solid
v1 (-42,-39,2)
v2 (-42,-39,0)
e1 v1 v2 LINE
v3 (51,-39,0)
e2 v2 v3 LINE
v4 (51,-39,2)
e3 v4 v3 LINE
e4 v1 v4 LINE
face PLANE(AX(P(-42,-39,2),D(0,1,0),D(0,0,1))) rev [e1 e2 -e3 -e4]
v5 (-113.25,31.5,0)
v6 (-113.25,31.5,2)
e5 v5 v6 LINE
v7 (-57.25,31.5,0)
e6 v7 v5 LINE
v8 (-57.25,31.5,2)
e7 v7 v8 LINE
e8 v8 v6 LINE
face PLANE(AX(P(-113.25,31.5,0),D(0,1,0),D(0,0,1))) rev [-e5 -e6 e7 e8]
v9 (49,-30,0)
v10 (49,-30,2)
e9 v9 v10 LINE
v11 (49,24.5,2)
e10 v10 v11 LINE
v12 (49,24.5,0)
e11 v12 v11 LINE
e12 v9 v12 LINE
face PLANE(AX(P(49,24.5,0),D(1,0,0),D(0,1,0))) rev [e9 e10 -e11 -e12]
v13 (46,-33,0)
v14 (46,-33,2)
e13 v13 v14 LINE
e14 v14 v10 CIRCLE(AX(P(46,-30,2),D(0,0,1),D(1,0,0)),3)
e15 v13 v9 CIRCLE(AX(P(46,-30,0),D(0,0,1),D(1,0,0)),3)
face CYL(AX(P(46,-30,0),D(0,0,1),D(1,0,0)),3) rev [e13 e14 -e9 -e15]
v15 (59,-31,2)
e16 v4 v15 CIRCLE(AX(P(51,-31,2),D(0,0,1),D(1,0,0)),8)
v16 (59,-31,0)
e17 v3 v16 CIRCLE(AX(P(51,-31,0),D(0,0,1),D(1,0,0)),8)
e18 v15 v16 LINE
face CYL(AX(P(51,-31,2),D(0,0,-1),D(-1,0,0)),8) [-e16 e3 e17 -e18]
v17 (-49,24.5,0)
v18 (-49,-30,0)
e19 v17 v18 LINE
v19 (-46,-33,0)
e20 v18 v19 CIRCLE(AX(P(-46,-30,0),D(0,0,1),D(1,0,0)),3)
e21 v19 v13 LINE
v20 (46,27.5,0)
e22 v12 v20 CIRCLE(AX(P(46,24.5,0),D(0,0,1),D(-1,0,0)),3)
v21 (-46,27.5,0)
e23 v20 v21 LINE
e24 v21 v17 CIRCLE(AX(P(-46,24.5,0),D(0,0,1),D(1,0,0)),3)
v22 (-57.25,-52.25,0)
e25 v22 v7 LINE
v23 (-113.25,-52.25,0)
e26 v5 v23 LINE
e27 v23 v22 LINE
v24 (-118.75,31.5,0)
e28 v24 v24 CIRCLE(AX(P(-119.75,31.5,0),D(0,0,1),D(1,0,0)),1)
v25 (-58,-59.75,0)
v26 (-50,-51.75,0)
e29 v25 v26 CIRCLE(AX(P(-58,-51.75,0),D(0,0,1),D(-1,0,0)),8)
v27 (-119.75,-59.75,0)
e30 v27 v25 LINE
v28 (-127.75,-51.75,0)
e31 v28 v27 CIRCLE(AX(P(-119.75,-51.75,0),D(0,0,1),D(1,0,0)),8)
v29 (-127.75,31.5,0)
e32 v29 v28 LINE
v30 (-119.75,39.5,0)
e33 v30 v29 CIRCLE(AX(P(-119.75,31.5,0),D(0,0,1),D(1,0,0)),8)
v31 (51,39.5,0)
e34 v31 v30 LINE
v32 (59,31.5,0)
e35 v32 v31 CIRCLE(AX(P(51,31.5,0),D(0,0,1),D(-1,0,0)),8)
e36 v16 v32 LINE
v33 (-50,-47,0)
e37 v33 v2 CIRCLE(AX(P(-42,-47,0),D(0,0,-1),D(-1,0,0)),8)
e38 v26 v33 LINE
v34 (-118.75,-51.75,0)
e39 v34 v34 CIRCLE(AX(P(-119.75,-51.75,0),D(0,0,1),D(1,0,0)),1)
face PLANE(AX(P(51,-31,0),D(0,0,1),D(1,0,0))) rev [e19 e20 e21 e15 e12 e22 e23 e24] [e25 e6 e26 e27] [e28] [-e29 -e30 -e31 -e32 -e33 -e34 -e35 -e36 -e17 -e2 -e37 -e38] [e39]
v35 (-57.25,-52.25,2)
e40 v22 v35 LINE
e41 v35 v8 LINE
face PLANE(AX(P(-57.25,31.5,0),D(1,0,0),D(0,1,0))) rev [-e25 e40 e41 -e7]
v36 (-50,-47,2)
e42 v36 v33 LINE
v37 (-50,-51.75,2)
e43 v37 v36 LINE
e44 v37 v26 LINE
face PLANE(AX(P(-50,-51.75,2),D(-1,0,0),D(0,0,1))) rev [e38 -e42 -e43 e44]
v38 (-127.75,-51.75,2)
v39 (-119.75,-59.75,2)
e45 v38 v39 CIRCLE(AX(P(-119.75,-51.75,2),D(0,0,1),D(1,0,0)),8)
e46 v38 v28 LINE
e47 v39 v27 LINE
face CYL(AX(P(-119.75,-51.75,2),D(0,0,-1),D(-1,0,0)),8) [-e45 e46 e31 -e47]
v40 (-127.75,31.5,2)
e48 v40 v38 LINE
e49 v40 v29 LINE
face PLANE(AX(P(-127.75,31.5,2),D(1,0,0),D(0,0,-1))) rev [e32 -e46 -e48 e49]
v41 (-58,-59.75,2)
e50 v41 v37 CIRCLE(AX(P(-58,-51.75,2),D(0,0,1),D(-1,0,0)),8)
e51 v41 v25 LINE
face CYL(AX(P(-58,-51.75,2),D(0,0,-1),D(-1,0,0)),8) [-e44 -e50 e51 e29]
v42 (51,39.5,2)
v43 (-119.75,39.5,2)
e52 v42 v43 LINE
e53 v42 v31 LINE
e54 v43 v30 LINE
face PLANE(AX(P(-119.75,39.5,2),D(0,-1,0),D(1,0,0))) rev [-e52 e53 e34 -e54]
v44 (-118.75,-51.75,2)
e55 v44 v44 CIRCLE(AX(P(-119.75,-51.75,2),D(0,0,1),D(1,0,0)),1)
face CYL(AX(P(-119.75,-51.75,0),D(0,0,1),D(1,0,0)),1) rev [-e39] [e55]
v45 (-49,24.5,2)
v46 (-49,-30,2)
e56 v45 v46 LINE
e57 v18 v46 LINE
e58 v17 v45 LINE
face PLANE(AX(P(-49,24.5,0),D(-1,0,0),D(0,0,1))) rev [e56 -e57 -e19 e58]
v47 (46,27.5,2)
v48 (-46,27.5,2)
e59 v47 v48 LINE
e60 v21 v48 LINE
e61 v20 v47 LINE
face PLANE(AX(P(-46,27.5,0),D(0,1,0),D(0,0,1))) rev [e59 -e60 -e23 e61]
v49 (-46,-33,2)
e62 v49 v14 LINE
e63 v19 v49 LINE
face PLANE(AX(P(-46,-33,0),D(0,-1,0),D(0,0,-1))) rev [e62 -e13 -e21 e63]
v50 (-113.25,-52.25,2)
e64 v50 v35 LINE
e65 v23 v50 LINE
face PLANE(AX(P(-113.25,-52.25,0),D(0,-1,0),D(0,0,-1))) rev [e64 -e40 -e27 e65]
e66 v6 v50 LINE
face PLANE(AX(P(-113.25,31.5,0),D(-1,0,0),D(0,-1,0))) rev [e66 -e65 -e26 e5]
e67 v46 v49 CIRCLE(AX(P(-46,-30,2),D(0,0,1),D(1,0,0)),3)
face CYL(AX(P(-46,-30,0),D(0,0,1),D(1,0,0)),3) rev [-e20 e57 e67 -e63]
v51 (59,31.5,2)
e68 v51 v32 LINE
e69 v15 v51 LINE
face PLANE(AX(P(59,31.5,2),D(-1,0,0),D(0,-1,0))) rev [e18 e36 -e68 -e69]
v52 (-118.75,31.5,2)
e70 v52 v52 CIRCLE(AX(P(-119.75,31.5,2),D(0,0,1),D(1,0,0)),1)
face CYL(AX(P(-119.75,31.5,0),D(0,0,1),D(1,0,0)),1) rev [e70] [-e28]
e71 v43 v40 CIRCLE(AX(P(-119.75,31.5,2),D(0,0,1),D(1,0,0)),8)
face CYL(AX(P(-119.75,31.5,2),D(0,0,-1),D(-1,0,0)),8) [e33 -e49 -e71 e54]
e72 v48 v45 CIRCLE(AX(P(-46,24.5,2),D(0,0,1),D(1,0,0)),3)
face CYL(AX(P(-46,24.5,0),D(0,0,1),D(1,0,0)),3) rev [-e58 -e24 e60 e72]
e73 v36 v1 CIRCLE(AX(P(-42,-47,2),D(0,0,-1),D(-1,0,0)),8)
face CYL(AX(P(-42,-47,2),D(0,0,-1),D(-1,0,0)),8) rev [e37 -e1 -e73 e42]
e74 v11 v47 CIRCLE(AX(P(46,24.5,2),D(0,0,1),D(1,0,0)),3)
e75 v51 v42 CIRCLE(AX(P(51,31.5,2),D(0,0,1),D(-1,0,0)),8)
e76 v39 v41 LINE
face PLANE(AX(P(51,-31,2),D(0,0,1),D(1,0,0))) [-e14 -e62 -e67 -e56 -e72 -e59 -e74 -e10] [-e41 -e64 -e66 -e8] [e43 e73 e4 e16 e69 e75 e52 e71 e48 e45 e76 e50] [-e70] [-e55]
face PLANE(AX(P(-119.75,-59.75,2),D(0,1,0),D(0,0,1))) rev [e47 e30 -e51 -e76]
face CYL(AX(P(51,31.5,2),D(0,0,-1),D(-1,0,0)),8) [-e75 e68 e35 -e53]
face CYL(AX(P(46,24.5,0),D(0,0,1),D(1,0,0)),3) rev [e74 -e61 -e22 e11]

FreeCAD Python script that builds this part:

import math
import FreeCAD as App
import Part
import Sketcher
from FreeCAD import Vector

doc = App.newDocument("Part")
params = doc.addObject("Spreadsheet::Sheet", "Params")
for row, (alias, value) in enumerate([
    ("sketch1_radius", "8 mm"),
    ("sketch1_width", "93 mm"),
    ("sketch1_height", "62.5 mm"),
    ("sketch1_width2", "170.75 mm"),
    ("sketch1_height2", "4.75 mm"),
    ("pad1_length", "2 mm"),
    ("sketch2_diameter", "2 mm"),
    ("sketch3_radius", "3 mm"),
    ("sketch3_width", "56 mm"),
    ("sketch3_width2", "92 mm"),
    ("sketch3_height", "54.5 mm"),
    ("sketch3_height2", "83.75 mm"),
], start=1):
    params.set(f"A{row}", alias)
    params.set(f"B{row}", "=" + value)
    params.setAlias(f"B{row}", alias)

body = doc.addObject("PartDesign::Body", "Body")

sketch1 = body.newObject("Sketcher::SketchObject", "Sketch")
sketch1.AttachmentSupport = (doc.getObject("XY_Plane"), [""])
sketch1.MapMode = "FlatFace"
sketch1.addGeometry(Part.LineSegment(Vector(-50, -51.8, 0), Vector(-50, -47, 0)), False)
sketch1.addGeometry(Part.ArcOfCircle(Part.Circle(Vector(-42, -47, 0), Vector(0, 0, 1), 8), math.radians(90), math.radians(180)), False)
sketch1.addGeometry(Part.LineSegment(Vector(-42, -39, 0), Vector(51, -39, 0)), False)
sketch1.addGeometry(Part.ArcOfCircle(Part.Circle(Vector(51, -31, 0), Vector(0, 0, 1), 8), math.radians(-90), math.radians(0)), False)
sketch1.addGeometry(Part.LineSegment(Vector(59, -31, 0), Vector(59, 31.5, 0)), False)
sketch1.addGeometry(Part.ArcOfCircle(Part.Circle(Vector(51, 31.5, 0), Vector(0, 0, 1), 8), math.radians(0), math.radians(90)), False)
sketch1.addGeometry(Part.LineSegment(Vector(51, 39.5, 0), Vector(-119.8, 39.5, 0)), False)
sketch1.addGeometry(Part.ArcOfCircle(Part.Circle(Vector(-119.7, 31.5, 0), Vector(0, 0, 1), 8), math.radians(90), math.radians(180)), False)
sketch1.addGeometry(Part.LineSegment(Vector(-127.8, 31.5, 0), Vector(-127.8, -51.8, 0)), False)
sketch1.addGeometry(Part.ArcOfCircle(Part.Circle(Vector(-119.7, -51.7, 0), Vector(0, 0, 1), 8), math.radians(-180), math.radians(-90)), False)
sketch1.addGeometry(Part.LineSegment(Vector(-119.8, -59.8, 0), Vector(-58, -59.8, 0)), False)
sketch1.addGeometry(Part.ArcOfCircle(Part.Circle(Vector(-58, -51.7, 0), Vector(0, 0, 1), 8), math.radians(-90), math.radians(0)), False)
sketch1.addConstraint(Sketcher.Constraint("Tangent", 0, 2, 1, 2))
sketch1.addConstraint(Sketcher.Constraint("Tangent", 1, 1, 2, 1))
sketch1.addConstraint(Sketcher.Constraint("Tangent", 2, 2, 3, 1))
sketch1.addConstraint(Sketcher.Constraint("Tangent", 3, 2, 4, 1))
sketch1.addConstraint(Sketcher.Constraint("Tangent", 4, 2, 5, 1))
sketch1.addConstraint(Sketcher.Constraint("Tangent", 5, 2, 6, 1))
sketch1.addConstraint(Sketcher.Constraint("Tangent", 6, 2, 7, 1))
sketch1.addConstraint(Sketcher.Constraint("Tangent", 7, 2, 8, 1))
sketch1.addConstraint(Sketcher.Constraint("Tangent", 8, 2, 9, 1))
sketch1.addConstraint(Sketcher.Constraint("Tangent", 9, 2, 10, 1))
sketch1.addConstraint(Sketcher.Constraint("Tangent", 10, 2, 11, 1))
sketch1.addConstraint(Sketcher.Constraint("Tangent", 11, 2, 0, 1))
sketch1.addConstraint(Sketcher.Constraint("Vertical", 0))
sketch1.addConstraint(Sketcher.Constraint("Horizontal", 2))
sketch1.addConstraint(Sketcher.Constraint("Vertical", 4))
sketch1.addConstraint(Sketcher.Constraint("Horizontal", 6))
sketch1.addConstraint(Sketcher.Constraint("Vertical", 8))
sketch1.addConstraint(Sketcher.Constraint("Horizontal", 10))
sketch1.addConstraint(Sketcher.Constraint("Equal", 1, 3))
sketch1.addConstraint(Sketcher.Constraint("Equal", 3, 5))
sketch1.addConstraint(Sketcher.Constraint("Equal", 5, 7))
sketch1.addConstraint(Sketcher.Constraint("Equal", 7, 9))
sketch1.addConstraint(Sketcher.Constraint("Equal", 9, 11))
sketch1.addConstraint(Sketcher.Constraint("Radius", 1, 8.0))
sketch1.addConstraint(Sketcher.Constraint("DistanceX", 2, 1, 2, 2, 93.0))
sketch1.addConstraint(Sketcher.Constraint("DistanceY", 4, 1, 4, 2, 62.5))
sketch1.addConstraint(Sketcher.Constraint("DistanceX", 1, 3, -1, 1, 42.0))
sketch1.addConstraint(Sketcher.Constraint("DistanceY", 1, 3, -1, 1, 47.0))
sketch1.addConstraint(Sketcher.Constraint("DistanceX", 6, 2, 6, 1, 170.75))
sketch1.addConstraint(Sketcher.Constraint("DistanceY", 0, 1, 0, 2, 4.75))
sketch1.setExpression("Constraints[23]", "Params.sketch1_radius")
sketch1.setExpression("Constraints[24]", "Params.sketch1_width")
sketch1.setExpression("Constraints[25]", "Params.sketch1_height")
sketch1.setExpression("Constraints[28]", "Params.sketch1_width2")
sketch1.setExpression("Constraints[29]", "Params.sketch1_height2")
pad1 = body.newObject("PartDesign::Pad", "Pad")
pad1.Profile = sketch1
pad1.setExpression("Length", "Params.pad1_length")

sketch2 = body.newObject("Sketcher::SketchObject", "Sketch001")
sketch2.AttachmentSupport = (doc.getObject("XY_Plane"), [""])
sketch2.MapMode = "FlatFace"
sketch2.AttachmentOffset = App.Placement(Vector(0, 0, 2), App.Rotation())
sketch2.addGeometry(Part.Circle(Vector(-119.8, 31.5, 0), Vector(0, 0, 1), 1), False)
sketch2.addGeometry(Part.Circle(Vector(-119.8, -51.8, 0), Vector(0, 0, 1), 1), False)
sketch2.addConstraint(Sketcher.Constraint("Equal", 0, 1))
sketch2.addConstraint(Sketcher.Constraint("Vertical", 0, 3, 1, 3))
sketch2.addConstraint(Sketcher.Constraint("Diameter", 0, 2.0))
sketch2.addConstraint(Sketcher.Constraint("DistanceY", -1, 1, 0, 3, 31.5))
sketch2.addConstraint(Sketcher.Constraint("DistanceX", 0, 3, -1, 1, 119.75))
sketch2.addConstraint(Sketcher.Constraint("DistanceY", 1, 3, -1, 1, 51.75))
sketch2.setExpression("Constraints[2]", "Params.sketch2_diameter")
pocket1 = body.newObject("PartDesign::Pocket", "Pocket")
pocket1.Profile = sketch2
pocket1.Type = "ThroughAll"
pocket1.Midplane = True

sketch3 = body.newObject("Sketcher::SketchObject", "Sketch002")
sketch3.AttachmentSupport = (doc.getObject("XY_Plane"), [""])
sketch3.MapMode = "FlatFace"
sketch3.AttachmentOffset = App.Placement(Vector(0, 0, 2), App.Rotation())
sketch3.addGeometry(Part.LineSegment(Vector(-113.2, 31.5, 0), Vector(-113.2, -52.2, 0)), False)
sketch3.addGeometry(Part.LineSegment(Vector(-113.2, -52.2, 0), Vector(-57.2, -52.2, 0)), False)
sketch3.addGeometry(Part.LineSegment(Vector(-57.2, -52.2, 0), Vector(-57.2, 31.5, 0)), False)
sketch3.addGeometry(Part.LineSegment(Vector(-57.2, 31.5, 0), Vector(-113.2, 31.5, 0)), False)
sketch3.addGeometry(Part.LineSegment(Vector(46, 27.5, 0), Vector(-46, 27.5, 0)), False)
sketch3.addGeometry(Part.ArcOfCircle(Part.Circle(Vector(-46, 24.5, 0), Vector(0, 0, 1), 3), math.radians(90), math.radians(180)), False)
sketch3.addGeometry(Part.LineSegment(Vector(-49, 24.5, 0), Vector(-49, -30, 0)), False)
sketch3.addGeometry(Part.ArcOfCircle(Part.Circle(Vector(-46, -30, 0), Vector(0, 0, 1), 3), math.radians(180), math.radians(270)), False)
sketch3.addGeometry(Part.LineSegment(Vector(-46, -33, 0), Vector(46, -33, 0)), False)
sketch3.addGeometry(Part.ArcOfCircle(Part.Circle(Vector(46, -30, 0), Vector(0, 0, 1), 3), math.radians(-90), math.radians(0)), False)
sketch3.addGeometry(Part.LineSegment(Vector(49, -30, 0), Vector(49, 24.5, 0)), False)
sketch3.addGeometry(Part.ArcOfCircle(Part.Circle(Vector(46, 24.5, 0), Vector(0, 0, 1), 3), math.radians(0), math.radians(90)), False)
sketch3.addConstraint(Sketcher.Constraint("Coincident", 0, 2, 1, 1))
sketch3.addConstraint(Sketcher.Constraint("Coincident", 1, 2, 2, 1))
sketch3.addConstraint(Sketcher.Constraint("Coincident", 2, 2, 3, 1))
sketch3.addConstraint(Sketcher.Constraint("Coincident", 3, 2, 0, 1))
sketch3.addConstraint(Sketcher.Constraint("Tangent", 4, 2, 5, 1))
sketch3.addConstraint(Sketcher.Constraint("Tangent", 5, 2, 6, 1))
sketch3.addConstraint(Sketcher.Constraint("Tangent", 6, 2, 7, 1))
sketch3.addConstraint(Sketcher.Constraint("Tangent", 7, 2, 8, 1))
sketch3.addConstraint(Sketcher.Constraint("Tangent", 8, 2, 9, 1))
sketch3.addConstraint(Sketcher.Constraint("Tangent", 9, 2, 10, 1))
sketch3.addConstraint(Sketcher.Constraint("Tangent", 10, 2, 11, 1))
sketch3.addConstraint(Sketcher.Constraint("Tangent", 11, 2, 4, 1))
sketch3.addConstraint(Sketcher.Constraint("Vertical", 0))
sketch3.addConstraint(Sketcher.Constraint("Horizontal", 1))
sketch3.addConstraint(Sketcher.Constraint("Vertical", 2))
sketch3.addConstraint(Sketcher.Constraint("Horizontal", 3))
sketch3.addConstraint(Sketcher.Constraint("Horizontal", 4))
sketch3.addConstraint(Sketcher.Constraint("Vertical", 6))
sketch3.addConstraint(Sketcher.Constraint("Horizontal", 8))
sketch3.addConstraint(Sketcher.Constraint("Vertical", 10))
sketch3.addConstraint(Sketcher.Constraint("Equal", 5, 7))
sketch3.addConstraint(Sketcher.Constraint("Equal", 7, 9))
sketch3.addConstraint(Sketcher.Constraint("Equal", 9, 11))
sketch3.addConstraint(Sketcher.Constraint("Radius", 5, 3.0))
sketch3.addConstraint(Sketcher.Constraint("DistanceX", 1, 1, 1, 2, 56.0))
sketch3.addConstraint(Sketcher.Constraint("DistanceX", 4, 2, 4, 1, 92.0))
sketch3.addConstraint(Sketcher.Constraint("DistanceY", 6, 2, 6, 1, 54.5))
sketch3.addConstraint(Sketcher.Constraint("DistanceX", 5, 3, -1, 1, 46.0))
sketch3.addConstraint(Sketcher.Constraint("DistanceY", 7, 3, -1, 1, 30.0))
sketch3.addConstraint(Sketcher.Constraint("DistanceY", 5, 3, 2, 2, 7.0))
sketch3.addConstraint(Sketcher.Constraint("DistanceY", 0, 2, 0, 1, 83.75))
sketch3.addConstraint(Sketcher.Constraint("DistanceX", 0, 2, -1, 1, 113.25))
sketch3.setExpression("Constraints[23]", "Params.sketch3_radius")
sketch3.setExpression("Constraints[24]", "Params.sketch3_width")
sketch3.setExpression("Constraints[25]", "Params.sketch3_width2")
sketch3.setExpression("Constraints[26]", "Params.sketch3_height")
sketch3.setExpression("Constraints[30]", "Params.sketch3_height2")
pocket2 = body.newObject("PartDesign::Pocket", "Pocket001")
pocket2.Profile = sketch3
pocket2.Type = "ThroughAll"
pocket2.Midplane = True

doc.recompute()
